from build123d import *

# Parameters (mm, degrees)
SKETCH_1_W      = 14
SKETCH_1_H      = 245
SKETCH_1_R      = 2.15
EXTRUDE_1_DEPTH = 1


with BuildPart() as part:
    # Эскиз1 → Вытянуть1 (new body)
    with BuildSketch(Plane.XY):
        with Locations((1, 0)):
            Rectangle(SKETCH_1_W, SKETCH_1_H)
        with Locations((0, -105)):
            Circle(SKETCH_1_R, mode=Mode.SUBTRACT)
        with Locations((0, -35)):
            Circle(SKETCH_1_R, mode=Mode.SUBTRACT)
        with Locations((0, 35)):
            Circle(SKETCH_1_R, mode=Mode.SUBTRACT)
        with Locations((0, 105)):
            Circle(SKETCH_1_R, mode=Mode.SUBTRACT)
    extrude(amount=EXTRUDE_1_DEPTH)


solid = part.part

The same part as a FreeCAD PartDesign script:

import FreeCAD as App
import Part
import Sketcher
from FreeCAD import Vector


def add_polygon(sketch, points):
    """Adds a closed chain of lines whose ends are joined by coincident constraints."""
    first, n = sketch.GeometryCount, len(points)
    for a, b in zip(points, points[1:] + points[:1]):
        sketch.addGeometry(Part.LineSegment(App.Vector(*a, 0), App.Vector(*b, 0)), False)
    for i in range(n):
        sketch.addConstraint(Sketcher.Constraint("Coincident", first + i, 2, first + (i + 1) % n, 1))

doc = App.newDocument("Part")
body = doc.addObject("PartDesign::Body", "Body")

sketch1 = body.newObject("Sketcher::SketchObject", "Sketch")
sketch1.AttachmentSupport = (doc.getObject("XY_Plane"), [""])
sketch1.MapMode = "FlatFace"
add_polygon(sketch1, [(-6, 122.5), (-6, -122.5), (8, -122.5), (8, 122.5)])
sketch1.addGeometry(Part.Circle(Vector(0, -105, 0), Vector(0, 0, 1), 2.15), False)
sketch1.addGeometry(Part.Circle(Vector(0, -35, 0), Vector(0, 0, 1), 2.15), False)
sketch1.addGeometry(Part.Circle(Vector(0, 35, 0), Vector(0, 0, 1), 2.15), False)
sketch1.addGeometry(Part.Circle(Vector(0, 105, 0), Vector(0, 0, 1), 2.15), False)
sketch1.addConstraint(Sketcher.Constraint("Vertical", 0))
sketch1.addConstraint(Sketcher.Constraint("Horizontal", 1))
sketch1.addConstraint(Sketcher.Constraint("Vertical", 2))
sketch1.addConstraint(Sketcher.Constraint("Horizontal", 3))
sketch1.addConstraint(Sketcher.Constraint("Equal", 4, 5))
sketch1.addConstraint(Sketcher.Constraint("Equal", 5, 6))
sketch1.addConstraint(Sketcher.Constraint("Equal", 6, 7))
sketch1.addConstraint(Sketcher.Constraint("Symmetric", 5, 3, 6, 3, -1, 1))
sketch1.addConstraint(Sketcher.Constraint("Symmetric", 4, 3, 7, 3, -1, 1))
sketch1.addConstraint(Sketcher.Constraint("PointOnObject", 4, 3, -2))
sketch1.addConstraint(Sketcher.Constraint("PointOnObject", 5, 3, -2))
sketch1.addConstraint(Sketcher.Constraint("Diameter", 4, 4.3))
sketch1.addConstraint(Sketcher.Constraint("DistanceX", 1, 1, 1, 2, 14.0))
sketch1.addConstraint(Sketcher.Constraint("DistanceY", 0, 2, 0, 1, 245.0))
sketch1.addConstraint(Sketcher.Constraint("DistanceY", 4, 3, -1, 1, 105.0))
sketch1.addConstraint(Sketcher.Constraint("DistanceY", 5, 3, -1, 1, 35.0))
sketch1.addConstraint(Sketcher.Constraint("DistanceX", 0, 2, -1, 1, 6.0))
sketch1.addConstraint(Sketcher.Constraint("DistanceY", 0, 2, -1, 1, 122.5))
pad1 = body.newObject("PartDesign::Pad", "Pad")
pad1.Profile = sketch1
pad1.Length = 1

doc.recompute()
